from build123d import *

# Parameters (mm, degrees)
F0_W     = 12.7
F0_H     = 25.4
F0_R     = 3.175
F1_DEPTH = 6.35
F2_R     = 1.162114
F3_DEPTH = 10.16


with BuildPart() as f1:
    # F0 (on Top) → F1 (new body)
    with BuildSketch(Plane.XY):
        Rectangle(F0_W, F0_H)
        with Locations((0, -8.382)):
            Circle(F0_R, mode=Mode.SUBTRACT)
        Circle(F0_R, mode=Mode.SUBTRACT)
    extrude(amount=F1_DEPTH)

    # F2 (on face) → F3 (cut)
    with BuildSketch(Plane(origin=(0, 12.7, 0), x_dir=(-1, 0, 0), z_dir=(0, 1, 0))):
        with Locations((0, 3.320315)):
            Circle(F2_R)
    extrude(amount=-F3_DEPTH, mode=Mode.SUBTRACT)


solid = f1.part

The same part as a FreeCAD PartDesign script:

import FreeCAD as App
import Part
import Sketcher

V = App.Vector
Q = App.Units.Quantity


def add_polygon(sketch, points):
    """Adds a closed chain of lines whose ends are joined by coincident constraints."""
    first, n = sketch.GeometryCount, len(points)
    for a, b in zip(points, points[1:] + points[:1]):
        sketch.addGeometry(Part.LineSegment(App.Vector(*a, 0), App.Vector(*b, 0)), False)
    for i in range(n):
        sketch.addConstraint(Sketcher.Constraint("Coincident", first + i, 2, first + (i + 1) % n, 1))

doc = App.newDocument("Part")
body = doc.addObject("PartDesign::Body", "Body")

sketch1 = body.newObject("Sketcher::SketchObject", "Sketch")
sketch1.AttachmentSupport = (doc.getObject("XY_Plane"), [""])
sketch1.MapMode = "FlatFace"
add_polygon(sketch1, [(-6.3, 12.7), (-6.3, -12.7), (6.3, -12.7), (6.3, 12.7)])
sketch1.addGeometry(Part.Circle(V(0, -8.4, 0), V(0, 0, 1), 3.2), False)
sketch1.addGeometry(Part.Circle(V(0, 0, 0), V(0, 0, 1), 3.2), False)
sketch1.addConstraint([
    Sketcher.Constraint("Vertical", 0),
    Sketcher.Constraint("Horizontal", 1),
    Sketcher.Constraint("Vertical", 2),
    Sketcher.Constraint("Horizontal", 3),
    Sketcher.Constraint("Coincident", 5, 3, -1, 1),
    Sketcher.Constraint("Equal", 4, 5),
    Sketcher.Constraint("Symmetric", 0, 2, 2, 2, -1, 1),
    Sketcher.Constraint("PointOnObject", 4, 3, -2),
    Sketcher.Constraint("Diameter", 4, Q("0.25 in")),
    Sketcher.Constraint("DistanceY", 0, 2, 0, 1, Q("1 in")),
    Sketcher.Constraint("DistanceX", 1, 1, 1, 2, Q("0.5 in")),
    Sketcher.Constraint("DistanceY", 4, 3, -1, 1, Q("0.33 in")),
])
pad1 = body.newObject("PartDesign::Pad", "Pad")
pad1.Profile = sketch1
pad1.Length = Q("0.25 in")

sketch2 = body.newObject("Sketcher::SketchObject", "Sketch001")
sketch2.AttachmentSupport = (doc.getObject("XZ_Plane"), [""])
sketch2.MapMode = "FlatFace"
sketch2.AttachmentOffset = App.Placement(V(0, 0, -0.5 * 25.4), App.Rotation())
sketch2.addGeometry(Part.Circle(V(0, 3.3, 0), V(0, 0, 1), 1.2), False)
sketch2.addConstraint([
    Sketcher.Constraint("PointOnObject", 0, 3, -2),
    Sketcher.Constraint("Diameter", 0, 2.324228),
    Sketcher.Constraint("DistanceY", -1, 1, 0, 3, 3.320315),
])
pocket1 = body.newObject("PartDesign::Pocket", "Pocket")
pocket1.Profile = sketch2
pocket1.Length = Q("0.4 in")
pocket1.Reversed = True

doc.recompute()
